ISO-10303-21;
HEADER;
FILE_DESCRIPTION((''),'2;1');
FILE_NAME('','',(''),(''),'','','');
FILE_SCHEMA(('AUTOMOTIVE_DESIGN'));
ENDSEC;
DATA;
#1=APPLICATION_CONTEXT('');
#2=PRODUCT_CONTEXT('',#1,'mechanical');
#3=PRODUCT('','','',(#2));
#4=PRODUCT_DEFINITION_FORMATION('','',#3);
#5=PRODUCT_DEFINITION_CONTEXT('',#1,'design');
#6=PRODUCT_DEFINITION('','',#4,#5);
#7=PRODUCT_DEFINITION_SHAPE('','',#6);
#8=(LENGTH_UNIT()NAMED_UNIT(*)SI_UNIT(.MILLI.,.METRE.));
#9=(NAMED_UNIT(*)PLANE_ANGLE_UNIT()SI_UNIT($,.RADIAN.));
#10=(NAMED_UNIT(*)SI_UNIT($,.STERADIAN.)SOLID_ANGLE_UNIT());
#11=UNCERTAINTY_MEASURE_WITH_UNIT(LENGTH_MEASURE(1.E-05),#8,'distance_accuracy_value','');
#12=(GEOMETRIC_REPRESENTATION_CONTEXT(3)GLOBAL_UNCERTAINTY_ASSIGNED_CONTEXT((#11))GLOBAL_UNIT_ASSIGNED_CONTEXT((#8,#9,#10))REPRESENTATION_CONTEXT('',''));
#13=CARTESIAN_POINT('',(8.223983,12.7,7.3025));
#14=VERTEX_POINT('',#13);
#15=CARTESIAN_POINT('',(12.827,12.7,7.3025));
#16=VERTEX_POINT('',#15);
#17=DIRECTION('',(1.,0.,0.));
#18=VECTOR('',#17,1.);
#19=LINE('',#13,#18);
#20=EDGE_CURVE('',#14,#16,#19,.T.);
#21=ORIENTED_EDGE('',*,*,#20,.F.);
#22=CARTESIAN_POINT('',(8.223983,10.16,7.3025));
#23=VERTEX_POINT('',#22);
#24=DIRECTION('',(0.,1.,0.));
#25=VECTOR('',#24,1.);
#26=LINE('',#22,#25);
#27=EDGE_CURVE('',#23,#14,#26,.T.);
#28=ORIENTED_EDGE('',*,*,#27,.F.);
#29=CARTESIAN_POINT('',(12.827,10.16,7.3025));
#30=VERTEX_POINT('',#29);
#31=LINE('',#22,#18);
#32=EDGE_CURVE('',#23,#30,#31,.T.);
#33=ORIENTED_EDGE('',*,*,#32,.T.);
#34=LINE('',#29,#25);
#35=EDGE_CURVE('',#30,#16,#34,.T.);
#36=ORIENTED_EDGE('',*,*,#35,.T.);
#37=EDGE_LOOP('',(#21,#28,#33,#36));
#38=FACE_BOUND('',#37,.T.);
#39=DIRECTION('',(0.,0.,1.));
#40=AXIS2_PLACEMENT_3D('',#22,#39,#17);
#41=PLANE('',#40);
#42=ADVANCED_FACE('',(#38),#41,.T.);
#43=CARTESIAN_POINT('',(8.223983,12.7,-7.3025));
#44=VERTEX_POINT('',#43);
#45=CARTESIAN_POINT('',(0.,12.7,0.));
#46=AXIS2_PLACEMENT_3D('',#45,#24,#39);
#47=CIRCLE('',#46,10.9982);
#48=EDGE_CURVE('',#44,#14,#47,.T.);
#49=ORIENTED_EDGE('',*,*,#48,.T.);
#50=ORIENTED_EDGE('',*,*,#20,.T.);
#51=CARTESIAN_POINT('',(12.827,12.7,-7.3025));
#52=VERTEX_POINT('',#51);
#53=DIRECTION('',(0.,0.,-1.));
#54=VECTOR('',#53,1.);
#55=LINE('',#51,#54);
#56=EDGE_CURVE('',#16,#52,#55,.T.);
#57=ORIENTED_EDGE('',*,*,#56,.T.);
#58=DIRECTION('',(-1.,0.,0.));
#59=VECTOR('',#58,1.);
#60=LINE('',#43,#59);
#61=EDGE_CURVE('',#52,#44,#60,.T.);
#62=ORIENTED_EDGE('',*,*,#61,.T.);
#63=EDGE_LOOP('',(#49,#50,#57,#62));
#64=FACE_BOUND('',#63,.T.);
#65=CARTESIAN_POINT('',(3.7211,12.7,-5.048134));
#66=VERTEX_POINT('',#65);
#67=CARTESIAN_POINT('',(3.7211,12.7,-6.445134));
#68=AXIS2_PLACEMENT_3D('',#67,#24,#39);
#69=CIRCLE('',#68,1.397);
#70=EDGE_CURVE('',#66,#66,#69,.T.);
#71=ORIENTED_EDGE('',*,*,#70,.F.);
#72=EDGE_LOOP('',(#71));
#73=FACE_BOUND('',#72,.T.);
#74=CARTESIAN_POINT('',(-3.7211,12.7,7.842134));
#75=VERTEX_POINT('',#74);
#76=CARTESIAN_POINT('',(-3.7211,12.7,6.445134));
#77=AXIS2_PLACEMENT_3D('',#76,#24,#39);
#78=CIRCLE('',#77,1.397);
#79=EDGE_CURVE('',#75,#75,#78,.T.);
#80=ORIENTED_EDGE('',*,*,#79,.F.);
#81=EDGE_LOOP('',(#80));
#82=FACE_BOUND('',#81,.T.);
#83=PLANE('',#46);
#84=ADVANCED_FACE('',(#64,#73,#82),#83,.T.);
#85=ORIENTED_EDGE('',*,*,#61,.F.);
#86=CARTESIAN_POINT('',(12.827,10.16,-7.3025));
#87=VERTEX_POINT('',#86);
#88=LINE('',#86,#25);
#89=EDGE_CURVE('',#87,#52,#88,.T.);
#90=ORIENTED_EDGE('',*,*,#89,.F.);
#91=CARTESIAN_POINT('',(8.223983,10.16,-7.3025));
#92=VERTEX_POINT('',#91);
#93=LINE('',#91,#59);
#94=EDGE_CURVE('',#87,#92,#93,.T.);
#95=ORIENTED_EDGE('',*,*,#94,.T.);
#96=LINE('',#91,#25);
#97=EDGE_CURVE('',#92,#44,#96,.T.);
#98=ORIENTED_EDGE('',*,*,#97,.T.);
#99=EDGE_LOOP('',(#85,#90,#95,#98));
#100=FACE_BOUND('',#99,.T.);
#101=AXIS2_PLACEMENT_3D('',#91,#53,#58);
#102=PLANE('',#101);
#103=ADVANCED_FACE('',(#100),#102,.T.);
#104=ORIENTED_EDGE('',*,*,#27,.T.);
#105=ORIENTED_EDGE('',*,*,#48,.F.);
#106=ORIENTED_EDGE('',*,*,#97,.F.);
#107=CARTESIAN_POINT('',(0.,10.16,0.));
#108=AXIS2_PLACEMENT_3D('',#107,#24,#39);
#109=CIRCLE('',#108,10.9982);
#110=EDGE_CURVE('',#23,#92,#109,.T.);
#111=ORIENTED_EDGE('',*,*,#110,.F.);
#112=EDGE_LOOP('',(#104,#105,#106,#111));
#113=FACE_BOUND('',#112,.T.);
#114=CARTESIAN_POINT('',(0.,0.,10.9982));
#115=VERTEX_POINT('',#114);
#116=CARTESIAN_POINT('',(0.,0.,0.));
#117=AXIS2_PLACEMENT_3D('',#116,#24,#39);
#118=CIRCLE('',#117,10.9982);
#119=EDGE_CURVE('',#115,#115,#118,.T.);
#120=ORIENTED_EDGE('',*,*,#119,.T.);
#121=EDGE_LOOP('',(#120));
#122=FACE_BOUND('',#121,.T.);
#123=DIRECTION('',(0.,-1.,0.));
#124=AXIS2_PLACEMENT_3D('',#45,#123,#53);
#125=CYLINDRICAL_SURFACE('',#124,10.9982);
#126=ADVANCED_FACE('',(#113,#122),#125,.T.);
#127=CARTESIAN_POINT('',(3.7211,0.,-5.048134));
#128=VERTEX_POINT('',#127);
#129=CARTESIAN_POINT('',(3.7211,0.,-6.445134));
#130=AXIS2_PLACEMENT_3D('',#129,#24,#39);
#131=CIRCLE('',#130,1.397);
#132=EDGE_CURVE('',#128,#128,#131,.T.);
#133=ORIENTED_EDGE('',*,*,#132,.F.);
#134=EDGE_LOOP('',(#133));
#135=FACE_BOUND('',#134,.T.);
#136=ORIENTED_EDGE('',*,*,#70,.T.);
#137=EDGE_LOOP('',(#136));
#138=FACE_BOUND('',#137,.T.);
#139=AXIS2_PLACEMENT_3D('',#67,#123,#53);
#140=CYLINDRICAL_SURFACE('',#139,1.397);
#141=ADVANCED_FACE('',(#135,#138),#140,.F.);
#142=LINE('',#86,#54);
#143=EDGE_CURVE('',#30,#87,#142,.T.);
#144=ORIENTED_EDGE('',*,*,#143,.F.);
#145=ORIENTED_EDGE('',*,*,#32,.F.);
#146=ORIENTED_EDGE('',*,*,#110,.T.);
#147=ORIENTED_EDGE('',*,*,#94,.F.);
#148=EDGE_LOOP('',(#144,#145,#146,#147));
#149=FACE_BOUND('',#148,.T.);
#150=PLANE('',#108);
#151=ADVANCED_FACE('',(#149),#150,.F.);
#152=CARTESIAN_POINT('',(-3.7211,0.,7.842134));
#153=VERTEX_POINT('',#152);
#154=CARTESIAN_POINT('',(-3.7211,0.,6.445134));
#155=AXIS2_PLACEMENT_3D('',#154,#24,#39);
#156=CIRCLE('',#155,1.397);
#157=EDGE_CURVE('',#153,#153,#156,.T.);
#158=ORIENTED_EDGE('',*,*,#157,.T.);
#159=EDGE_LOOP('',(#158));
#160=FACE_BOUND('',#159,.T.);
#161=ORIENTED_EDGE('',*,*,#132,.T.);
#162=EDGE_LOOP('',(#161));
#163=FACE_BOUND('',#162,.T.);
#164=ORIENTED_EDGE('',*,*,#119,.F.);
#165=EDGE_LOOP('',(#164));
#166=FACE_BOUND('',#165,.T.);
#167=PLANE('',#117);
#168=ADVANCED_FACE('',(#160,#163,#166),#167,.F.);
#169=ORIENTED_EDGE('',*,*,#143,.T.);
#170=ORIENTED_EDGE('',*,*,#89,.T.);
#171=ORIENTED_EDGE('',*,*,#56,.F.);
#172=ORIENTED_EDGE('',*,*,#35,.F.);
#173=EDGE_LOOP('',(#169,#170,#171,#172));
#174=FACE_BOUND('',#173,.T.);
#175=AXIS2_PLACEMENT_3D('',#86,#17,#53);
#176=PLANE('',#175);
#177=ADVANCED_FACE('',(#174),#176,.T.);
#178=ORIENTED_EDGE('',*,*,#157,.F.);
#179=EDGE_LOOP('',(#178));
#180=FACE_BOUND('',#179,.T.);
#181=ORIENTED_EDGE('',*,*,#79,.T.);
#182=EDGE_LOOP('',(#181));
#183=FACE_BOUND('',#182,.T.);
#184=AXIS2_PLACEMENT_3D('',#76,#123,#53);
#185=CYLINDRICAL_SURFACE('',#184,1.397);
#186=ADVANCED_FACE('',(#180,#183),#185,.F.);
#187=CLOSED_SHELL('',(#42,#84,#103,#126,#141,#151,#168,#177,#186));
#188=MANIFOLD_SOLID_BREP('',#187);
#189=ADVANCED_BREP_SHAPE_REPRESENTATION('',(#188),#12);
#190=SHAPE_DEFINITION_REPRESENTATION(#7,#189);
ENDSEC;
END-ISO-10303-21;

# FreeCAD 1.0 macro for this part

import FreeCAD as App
import Part
import Sketcher
from FreeCAD import Vector
Q = App.Units.Quantity


def add_polygon(sketch, points):
    """Adds a closed chain of lines whose ends are joined by coincident constraints."""
    first, n = sketch.GeometryCount, len(points)
    for a, b in zip(points, points[1:] + points[:1]):
        sketch.addGeometry(Part.LineSegment(App.Vector(*a, 0), App.Vector(*b, 0)), False)
    for i in range(n):
        sketch.addConstraint(Sketcher.Constraint("Coincident", first + i, 2, first + (i + 1) % n, 1))

doc = App.newDocument("Part")
body = doc.addObject("PartDesign::Body", "Body")

# Sketch on XZ plane
sketch1 = doc.addObject("Sketcher::SketchObject", "Sketch")
body.addObject(sketch1)
sketch1.AttachmentSupport = (doc.XZ_Plane, [""])
sketch1.MapMode = "FlatFace"
sketch1.addGeometry(Part.Circle(Vector(0, 0, 0), Vector(0, 0, 1), 10.9982), False)
sketch1.addGeometry(Part.Circle(Vector(-3.7211, 6.445134, 0), Vector(0, 0, 1), 1.397), False)
sketch1.addGeometry(Part.Circle(Vector(3.7211, -6.445134, 0), Vector(0, 0, 1), 1.397), False)
sketch1.addConstraint(Sketcher.Constraint("Coincident", 0, 3, -1, 1))
sketch1.addConstraint(Sketcher.Constraint("Equal", 1, 2))
sketch1.addConstraint(Sketcher.Constraint("Symmetric", 1, 3, 2, 3, -1, 1))
sketch1.addConstraint(Sketcher.Constraint("Diameter", 1, Q("0.11 in")))
sketch1.addConstraint(Sketcher.Constraint("Diameter", 0, Q("0.866 in")))
sketch1.addConstraint(Sketcher.Constraint("DistanceX", 1, 3, 2, 3, Q("0.293 in")))
sketch1.addConstraint(Sketcher.Constraint("DistanceY", 2, 3, 1, 3, Q("12.890269 mm")))
pad1 = doc.addObject("PartDesign::Pad", "Pad")
body.addObject(pad1)
pad1.Profile = sketch1
pad1.Length = Q("0.5 in")
pad1.Reversed = True

# Sketch on XZ plane
sketch2 = doc.addObject("Sketcher::SketchObject", "Sketch001")
body.addObject(sketch2)
sketch2.AttachmentSupport = (doc.XZ_Plane, [""])
sketch2.MapMode = "FlatFace"
sketch2.AttachmentOffset = App.Placement(Vector(0, 0, -0.5 * 25.4), App.Rotation())
add_polygon(sketch2, [(8.223983, -7.3025), (8.223983, 7.3025), (12.827, 7.3025), (12.827, -7.3025)])  # lines 0-3
sketch2.addConstraint(Sketcher.Constraint("Vertical", 0))
sketch2.addConstraint(Sketcher.Constraint("Horizontal", 1))
sketch2.addConstraint(Sketcher.Constraint("Vertical", 2))
sketch2.addConstraint(Sketcher.Constraint("Horizontal", 3))
sketch2.addConstraint(Sketcher.Constraint("DistanceY", 0, 1, 0, 2, Q("0.575 in")))
sketch2.addConstraint(Sketcher.Constraint("DistanceX", -1, 1, 1, 2, Q("0.505 in")))
sketch2.addConstraint(Sketcher.Constraint("DistanceY", -1, 1, 0, 2, Q("0.2875 in")))
sketch2.addConstraint(Sketcher.Constraint("DistanceX", 1, 1, 1, 2, Q("4.603017 mm")))
pad2 = doc.addObject("PartDesign::Pad", "Pad001")
body.addObject(pad2)
pad2.Profile = sketch2
pad2.Length = Q("0.1 in")

doc.recompute()
